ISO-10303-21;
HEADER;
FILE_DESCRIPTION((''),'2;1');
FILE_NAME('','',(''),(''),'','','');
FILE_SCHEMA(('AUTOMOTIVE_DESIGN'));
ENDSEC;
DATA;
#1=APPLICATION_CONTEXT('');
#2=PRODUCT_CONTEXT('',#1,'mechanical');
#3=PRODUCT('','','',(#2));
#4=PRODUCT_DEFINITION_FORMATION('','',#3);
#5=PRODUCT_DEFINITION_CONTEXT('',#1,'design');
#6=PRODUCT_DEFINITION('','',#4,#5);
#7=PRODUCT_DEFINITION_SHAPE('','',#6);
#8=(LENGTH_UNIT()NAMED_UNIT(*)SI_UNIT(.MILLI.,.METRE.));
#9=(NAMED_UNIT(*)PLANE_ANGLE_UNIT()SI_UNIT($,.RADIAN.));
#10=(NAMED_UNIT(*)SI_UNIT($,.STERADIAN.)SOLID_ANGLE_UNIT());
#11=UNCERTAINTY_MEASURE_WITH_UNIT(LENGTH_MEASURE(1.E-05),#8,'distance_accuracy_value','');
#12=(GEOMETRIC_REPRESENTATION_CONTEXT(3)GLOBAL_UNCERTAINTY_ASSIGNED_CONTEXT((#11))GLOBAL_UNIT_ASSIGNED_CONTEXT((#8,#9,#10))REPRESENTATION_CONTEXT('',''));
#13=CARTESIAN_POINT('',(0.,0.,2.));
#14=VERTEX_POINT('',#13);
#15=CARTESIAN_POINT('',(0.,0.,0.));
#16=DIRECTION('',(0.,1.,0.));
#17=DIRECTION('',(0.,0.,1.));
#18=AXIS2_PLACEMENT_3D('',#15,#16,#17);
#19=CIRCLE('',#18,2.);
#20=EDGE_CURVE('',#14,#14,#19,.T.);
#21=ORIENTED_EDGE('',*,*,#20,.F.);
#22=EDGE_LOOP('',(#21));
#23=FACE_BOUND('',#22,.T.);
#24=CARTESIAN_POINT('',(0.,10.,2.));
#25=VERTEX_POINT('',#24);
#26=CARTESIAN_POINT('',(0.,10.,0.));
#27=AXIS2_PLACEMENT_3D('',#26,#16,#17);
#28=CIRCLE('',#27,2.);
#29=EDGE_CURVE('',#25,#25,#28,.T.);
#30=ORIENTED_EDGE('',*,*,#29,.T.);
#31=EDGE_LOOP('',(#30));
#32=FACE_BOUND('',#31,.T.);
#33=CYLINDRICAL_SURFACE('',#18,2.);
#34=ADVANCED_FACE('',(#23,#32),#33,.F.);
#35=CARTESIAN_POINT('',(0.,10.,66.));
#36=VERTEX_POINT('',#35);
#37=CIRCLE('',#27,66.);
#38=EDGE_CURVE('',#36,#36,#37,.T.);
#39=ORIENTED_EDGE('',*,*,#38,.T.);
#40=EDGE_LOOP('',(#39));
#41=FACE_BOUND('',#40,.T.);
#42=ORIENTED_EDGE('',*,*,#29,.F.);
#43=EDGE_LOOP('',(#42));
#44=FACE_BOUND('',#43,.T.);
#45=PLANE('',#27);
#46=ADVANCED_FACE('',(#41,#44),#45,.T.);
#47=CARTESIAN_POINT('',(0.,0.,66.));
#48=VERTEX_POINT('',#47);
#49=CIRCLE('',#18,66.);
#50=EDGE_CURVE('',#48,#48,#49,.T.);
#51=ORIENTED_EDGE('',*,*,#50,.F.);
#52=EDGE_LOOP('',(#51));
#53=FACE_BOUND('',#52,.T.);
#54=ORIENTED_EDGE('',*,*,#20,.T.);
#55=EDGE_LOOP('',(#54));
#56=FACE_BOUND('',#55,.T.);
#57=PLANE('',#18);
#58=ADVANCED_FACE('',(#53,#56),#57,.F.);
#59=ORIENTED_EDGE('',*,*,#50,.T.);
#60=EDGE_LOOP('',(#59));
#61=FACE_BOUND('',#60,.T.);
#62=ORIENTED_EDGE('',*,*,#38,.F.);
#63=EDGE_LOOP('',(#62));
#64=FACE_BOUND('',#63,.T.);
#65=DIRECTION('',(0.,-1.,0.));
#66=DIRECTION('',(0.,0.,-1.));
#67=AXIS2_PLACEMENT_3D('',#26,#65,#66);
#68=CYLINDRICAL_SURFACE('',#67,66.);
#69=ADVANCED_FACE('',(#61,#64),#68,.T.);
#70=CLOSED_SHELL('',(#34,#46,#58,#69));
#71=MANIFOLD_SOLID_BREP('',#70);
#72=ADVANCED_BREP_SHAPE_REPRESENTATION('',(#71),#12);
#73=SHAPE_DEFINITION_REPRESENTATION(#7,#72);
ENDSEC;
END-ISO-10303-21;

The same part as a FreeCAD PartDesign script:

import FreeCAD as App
import Part
import Sketcher
from FreeCAD import Vector

doc = App.newDocument("Part")
body = doc.addObject("PartDesign::Body", "Body")

sketch1 = body.newObject("Sketcher::SketchObject", "Sketch")
sketch1.AttachmentSupport = (doc.getObject("XZ_Plane"), [""])
sketch1.MapMode = "FlatFace"
sketch1.addGeometry(Part.Circle(Vector(0, 0, 0), Vector(0, 0, 1), 66), False)
sketch1.addConstraint(Sketcher.Constraint("Coincident", 0, 3, -1, 1))
sketch1.addConstraint(Sketcher.Constraint("Diameter", 0, 132.0))
pad1 = body.newObject("PartDesign::Pad", "Pad")
pad1.Profile = sketch1
pad1.Length = 10
pad1.Reversed = True

sketch2 = body.newObject("Sketcher::SketchObject", "Sketch001")
sketch2.AttachmentSupport = (doc.getObject("XZ_Plane"), [""])
sketch2.MapMode = "FlatFace"
sketch2.AttachmentOffset = App.Placement(Vector(0, 0, -10), App.Rotation())
sketch2.addGeometry(Part.Circle(Vector(0, 0, 0), Vector(0, 0, 1), 2), False)
sketch2.addConstraint(Sketcher.Constraint("Coincident", 0, 3, -1, 1))
sketch2.addConstraint(Sketcher.Constraint("Diameter", 0, 4.0))
pocket1 = body.newObject("PartDesign::Pocket", "Pocket")
pocket1.Profile = sketch2
pocket1.Length = 10
pocket1.Reversed = True

doc.recompute()
